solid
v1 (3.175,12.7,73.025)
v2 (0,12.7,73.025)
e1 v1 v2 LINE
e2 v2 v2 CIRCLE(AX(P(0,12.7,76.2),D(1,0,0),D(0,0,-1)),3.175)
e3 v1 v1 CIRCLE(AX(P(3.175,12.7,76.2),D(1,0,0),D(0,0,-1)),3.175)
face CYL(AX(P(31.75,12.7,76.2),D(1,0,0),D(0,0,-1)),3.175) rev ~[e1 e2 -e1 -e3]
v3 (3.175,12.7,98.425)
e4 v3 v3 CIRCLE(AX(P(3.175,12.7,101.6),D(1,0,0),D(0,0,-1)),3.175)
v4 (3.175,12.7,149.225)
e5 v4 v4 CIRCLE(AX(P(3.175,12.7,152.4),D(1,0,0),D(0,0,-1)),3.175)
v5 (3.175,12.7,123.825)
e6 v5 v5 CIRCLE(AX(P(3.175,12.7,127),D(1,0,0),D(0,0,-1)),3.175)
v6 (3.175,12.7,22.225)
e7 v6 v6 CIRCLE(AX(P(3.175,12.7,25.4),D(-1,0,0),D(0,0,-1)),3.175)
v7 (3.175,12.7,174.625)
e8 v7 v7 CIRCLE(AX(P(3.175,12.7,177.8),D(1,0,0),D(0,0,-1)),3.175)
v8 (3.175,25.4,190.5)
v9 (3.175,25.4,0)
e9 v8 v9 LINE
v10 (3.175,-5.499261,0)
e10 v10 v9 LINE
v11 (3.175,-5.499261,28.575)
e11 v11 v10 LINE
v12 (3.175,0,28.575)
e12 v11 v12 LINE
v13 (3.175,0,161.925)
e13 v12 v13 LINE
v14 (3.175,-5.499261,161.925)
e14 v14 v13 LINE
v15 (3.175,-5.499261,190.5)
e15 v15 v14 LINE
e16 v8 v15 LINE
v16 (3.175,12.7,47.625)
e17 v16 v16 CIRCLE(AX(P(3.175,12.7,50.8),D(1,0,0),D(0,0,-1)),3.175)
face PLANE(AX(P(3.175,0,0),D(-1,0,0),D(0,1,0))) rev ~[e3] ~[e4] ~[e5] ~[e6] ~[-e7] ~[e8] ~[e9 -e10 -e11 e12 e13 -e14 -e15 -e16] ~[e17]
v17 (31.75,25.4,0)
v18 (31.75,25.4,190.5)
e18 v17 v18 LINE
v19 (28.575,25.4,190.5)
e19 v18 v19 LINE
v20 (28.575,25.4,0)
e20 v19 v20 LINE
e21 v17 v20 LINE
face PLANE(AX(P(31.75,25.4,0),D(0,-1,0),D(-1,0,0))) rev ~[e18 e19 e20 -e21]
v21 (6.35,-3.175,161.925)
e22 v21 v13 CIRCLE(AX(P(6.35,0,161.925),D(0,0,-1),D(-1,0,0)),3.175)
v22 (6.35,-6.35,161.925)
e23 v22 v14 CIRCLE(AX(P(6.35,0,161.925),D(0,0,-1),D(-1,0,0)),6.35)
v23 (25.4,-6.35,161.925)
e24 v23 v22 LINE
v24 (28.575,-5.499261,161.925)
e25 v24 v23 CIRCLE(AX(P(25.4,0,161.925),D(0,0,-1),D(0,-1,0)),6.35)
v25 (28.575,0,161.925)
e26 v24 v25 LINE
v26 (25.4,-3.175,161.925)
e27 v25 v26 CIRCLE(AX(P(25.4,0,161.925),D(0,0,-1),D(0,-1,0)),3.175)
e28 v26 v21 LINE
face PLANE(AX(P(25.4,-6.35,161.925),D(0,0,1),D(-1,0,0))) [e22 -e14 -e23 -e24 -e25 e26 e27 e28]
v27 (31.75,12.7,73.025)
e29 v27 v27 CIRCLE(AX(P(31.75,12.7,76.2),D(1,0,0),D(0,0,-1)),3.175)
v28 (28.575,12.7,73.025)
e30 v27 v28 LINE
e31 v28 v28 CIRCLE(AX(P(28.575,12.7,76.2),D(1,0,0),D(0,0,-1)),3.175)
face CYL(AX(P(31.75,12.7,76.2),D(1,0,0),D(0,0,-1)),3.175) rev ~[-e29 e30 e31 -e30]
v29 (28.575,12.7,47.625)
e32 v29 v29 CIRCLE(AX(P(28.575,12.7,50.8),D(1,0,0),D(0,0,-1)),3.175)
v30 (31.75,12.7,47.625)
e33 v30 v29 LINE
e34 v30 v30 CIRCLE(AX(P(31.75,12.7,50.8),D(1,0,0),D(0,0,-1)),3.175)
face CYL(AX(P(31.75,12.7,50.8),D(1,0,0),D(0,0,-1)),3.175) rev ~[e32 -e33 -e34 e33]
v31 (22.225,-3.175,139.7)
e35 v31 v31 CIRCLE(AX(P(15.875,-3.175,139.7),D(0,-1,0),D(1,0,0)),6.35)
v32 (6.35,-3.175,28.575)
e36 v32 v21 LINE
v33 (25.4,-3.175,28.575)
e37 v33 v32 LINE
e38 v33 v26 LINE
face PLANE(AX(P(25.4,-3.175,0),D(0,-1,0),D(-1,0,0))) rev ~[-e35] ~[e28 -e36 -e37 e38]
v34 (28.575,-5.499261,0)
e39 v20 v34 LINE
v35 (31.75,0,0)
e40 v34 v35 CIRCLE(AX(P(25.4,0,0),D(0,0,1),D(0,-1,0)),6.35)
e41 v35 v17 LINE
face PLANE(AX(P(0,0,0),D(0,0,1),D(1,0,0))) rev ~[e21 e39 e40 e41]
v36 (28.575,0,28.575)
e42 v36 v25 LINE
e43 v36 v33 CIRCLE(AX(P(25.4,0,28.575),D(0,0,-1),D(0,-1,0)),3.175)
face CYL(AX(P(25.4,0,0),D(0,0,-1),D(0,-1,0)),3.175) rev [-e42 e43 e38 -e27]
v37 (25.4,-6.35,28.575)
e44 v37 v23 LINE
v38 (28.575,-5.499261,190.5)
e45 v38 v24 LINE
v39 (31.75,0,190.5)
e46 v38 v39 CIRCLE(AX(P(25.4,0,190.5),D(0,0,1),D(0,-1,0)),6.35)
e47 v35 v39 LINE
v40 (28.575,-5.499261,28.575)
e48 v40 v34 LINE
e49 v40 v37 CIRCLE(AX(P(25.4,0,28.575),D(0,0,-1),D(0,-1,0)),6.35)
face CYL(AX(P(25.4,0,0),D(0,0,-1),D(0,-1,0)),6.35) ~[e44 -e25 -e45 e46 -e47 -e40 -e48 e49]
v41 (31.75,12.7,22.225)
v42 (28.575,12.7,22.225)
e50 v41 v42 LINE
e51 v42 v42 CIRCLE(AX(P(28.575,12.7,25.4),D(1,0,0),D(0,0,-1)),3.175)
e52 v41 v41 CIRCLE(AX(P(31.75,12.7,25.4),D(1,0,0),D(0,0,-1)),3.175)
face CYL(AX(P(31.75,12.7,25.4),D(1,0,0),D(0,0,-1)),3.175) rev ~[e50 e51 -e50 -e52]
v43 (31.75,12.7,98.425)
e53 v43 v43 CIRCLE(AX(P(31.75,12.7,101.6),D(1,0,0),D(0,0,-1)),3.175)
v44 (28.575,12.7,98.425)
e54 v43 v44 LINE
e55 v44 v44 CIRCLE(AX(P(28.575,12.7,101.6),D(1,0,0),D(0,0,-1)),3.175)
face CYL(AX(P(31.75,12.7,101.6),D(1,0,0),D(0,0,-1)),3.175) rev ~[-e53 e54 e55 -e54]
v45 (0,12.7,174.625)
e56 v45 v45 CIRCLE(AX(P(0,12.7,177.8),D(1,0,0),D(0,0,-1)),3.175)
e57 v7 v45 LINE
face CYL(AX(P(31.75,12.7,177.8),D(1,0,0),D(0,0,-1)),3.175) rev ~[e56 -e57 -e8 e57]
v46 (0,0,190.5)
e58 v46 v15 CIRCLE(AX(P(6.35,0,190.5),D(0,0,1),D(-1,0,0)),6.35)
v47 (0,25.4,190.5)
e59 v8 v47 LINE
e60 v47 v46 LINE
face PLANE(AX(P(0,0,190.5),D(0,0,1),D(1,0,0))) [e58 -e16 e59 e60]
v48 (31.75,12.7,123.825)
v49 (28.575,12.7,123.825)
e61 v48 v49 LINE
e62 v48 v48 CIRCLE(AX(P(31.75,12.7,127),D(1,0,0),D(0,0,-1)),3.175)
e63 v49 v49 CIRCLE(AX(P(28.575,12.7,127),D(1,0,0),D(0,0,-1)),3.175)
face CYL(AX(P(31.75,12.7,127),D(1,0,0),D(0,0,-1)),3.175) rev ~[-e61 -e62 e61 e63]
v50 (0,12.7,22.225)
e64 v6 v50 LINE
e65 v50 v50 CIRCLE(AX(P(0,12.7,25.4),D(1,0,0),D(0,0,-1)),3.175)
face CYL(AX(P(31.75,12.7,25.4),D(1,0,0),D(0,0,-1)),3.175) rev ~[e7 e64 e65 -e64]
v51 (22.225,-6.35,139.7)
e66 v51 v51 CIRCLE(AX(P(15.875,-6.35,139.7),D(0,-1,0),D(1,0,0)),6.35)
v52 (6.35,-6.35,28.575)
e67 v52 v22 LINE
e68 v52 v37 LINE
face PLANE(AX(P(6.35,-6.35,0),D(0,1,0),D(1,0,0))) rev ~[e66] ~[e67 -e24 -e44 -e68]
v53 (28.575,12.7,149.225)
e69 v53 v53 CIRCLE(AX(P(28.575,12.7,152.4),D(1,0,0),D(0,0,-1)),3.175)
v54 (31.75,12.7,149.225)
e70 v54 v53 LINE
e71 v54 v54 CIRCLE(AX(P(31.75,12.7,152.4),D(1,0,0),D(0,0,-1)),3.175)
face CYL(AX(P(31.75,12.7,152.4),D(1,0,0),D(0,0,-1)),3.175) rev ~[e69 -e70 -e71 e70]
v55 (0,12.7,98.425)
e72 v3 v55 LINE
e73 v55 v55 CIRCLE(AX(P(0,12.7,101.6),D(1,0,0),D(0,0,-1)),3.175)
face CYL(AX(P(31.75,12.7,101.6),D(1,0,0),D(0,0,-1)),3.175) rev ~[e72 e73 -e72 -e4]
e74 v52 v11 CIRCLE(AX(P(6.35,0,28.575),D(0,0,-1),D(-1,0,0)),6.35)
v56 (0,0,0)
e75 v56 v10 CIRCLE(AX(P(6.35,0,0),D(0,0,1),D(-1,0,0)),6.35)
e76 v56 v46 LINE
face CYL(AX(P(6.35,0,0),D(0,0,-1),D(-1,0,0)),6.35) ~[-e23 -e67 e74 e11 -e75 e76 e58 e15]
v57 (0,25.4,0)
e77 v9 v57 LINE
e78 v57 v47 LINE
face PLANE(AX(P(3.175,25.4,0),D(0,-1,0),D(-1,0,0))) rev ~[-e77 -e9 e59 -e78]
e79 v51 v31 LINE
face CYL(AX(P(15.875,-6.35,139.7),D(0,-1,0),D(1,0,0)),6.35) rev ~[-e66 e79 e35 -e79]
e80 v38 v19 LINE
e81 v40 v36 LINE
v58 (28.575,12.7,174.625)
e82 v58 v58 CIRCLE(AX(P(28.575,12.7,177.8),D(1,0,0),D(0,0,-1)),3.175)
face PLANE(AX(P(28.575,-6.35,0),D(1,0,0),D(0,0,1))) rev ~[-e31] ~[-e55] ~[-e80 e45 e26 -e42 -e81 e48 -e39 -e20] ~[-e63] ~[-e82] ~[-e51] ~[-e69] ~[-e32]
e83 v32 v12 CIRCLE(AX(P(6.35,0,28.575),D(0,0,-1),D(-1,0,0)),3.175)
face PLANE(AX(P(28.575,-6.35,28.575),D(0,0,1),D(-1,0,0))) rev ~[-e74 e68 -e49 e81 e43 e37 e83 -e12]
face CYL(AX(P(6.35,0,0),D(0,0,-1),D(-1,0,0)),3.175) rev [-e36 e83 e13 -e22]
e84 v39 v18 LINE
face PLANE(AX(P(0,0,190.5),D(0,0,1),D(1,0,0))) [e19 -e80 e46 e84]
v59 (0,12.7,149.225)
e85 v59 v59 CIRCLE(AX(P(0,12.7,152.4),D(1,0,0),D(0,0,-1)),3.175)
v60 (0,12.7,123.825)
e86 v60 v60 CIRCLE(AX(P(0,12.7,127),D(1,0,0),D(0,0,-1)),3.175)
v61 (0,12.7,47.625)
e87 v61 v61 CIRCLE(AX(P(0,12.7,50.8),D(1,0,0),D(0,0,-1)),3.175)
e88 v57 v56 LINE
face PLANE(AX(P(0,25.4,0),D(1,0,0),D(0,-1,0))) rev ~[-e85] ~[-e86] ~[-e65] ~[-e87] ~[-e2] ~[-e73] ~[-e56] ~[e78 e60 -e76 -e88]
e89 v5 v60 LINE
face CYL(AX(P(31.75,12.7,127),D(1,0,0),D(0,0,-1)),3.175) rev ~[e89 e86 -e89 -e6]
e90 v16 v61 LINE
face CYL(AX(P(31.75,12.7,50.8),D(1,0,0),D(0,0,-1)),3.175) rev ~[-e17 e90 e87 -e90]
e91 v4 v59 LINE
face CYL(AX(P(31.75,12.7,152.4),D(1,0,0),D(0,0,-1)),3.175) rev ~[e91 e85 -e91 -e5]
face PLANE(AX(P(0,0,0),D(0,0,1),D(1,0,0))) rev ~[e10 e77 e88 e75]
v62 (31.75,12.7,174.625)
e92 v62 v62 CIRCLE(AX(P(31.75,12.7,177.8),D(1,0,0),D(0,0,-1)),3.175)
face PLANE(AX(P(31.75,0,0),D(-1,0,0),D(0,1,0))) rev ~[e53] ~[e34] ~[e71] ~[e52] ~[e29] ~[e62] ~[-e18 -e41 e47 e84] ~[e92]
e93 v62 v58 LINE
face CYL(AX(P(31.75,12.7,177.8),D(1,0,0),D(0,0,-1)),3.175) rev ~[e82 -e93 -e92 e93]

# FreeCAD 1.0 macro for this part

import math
import FreeCAD as App
import Part
import Sketcher

V = App.Vector
Q = App.Units.Quantity


def add_polygon(sketch, points):
    """Adds a closed chain of lines whose ends are joined by coincident constraints."""
    first, n = sketch.GeometryCount, len(points)
    for a, b in zip(points, points[1:] + points[:1]):
        sketch.addGeometry(Part.LineSegment(App.Vector(*a, 0), App.Vector(*b, 0)), False)
    for i in range(n):
        sketch.addConstraint(Sketcher.Constraint("Coincident", first + i, 2, first + (i + 1) % n, 1))

doc = App.newDocument("Part")
params = doc.addObject("Spreadsheet::Sheet", "Params")
for row, (alias, value) in enumerate([
    ("sketch1_height", "1 in"),
    ("sketch1_radius", "0.125 in"),
    ("pad1_length", "7.5 in"),
    ("sketch2_diameter", "0.25 in"),
    ("linearpattern_pitch", "1 in"),
    ("sketch3_diameter", "0.5 in"),
    ("sketch4_width", "1 in"),
    ("sketch4_height", "1.125 in"),
], start=1):
    params.set(f"A{row}", alias)
    params.set(f"B{row}", "=" + value)
    params.setAlias(f"B{row}", alias)

body = doc.addObject("PartDesign::Body", "Body")

sketch1 = body.newObject("Sketcher::SketchObject", "Sketch")
sketch1.AttachmentSupport = (doc.getObject("XY_Plane"), [""])
sketch1.MapMode = "FlatFace"
sketch1.addGeometry([
    Part.LineSegment(V(3.2, 25.4, 0), V(0, 25.4, 0)),
    Part.LineSegment(V(0, 25.4, 0), V(0, 0, 0)),
    Part.ArcOfCircle(Part.Circle(V(6.3, 0, 0), V(0, 0, 1), 6.3), math.radians(180), math.radians(270)),
    Part.LineSegment(V(6.3, -6.3, 0), V(25.4, -6.3, 0)),
    Part.ArcOfCircle(Part.Circle(V(25.4, 0, 0), V(0, 0, 1), 6.3), math.radians(-90), math.radians(0)),
    Part.LineSegment(V(31.8, 0, 0), V(31.8, 25.4, 0)),
    Part.LineSegment(V(31.8, 25.4, 0), V(28.6, 25.4, 0)),
    Part.LineSegment(V(28.6, 25.4, 0), V(28.6, 0, 0)),
    Part.ArcOfCircle(Part.Circle(V(25.4, 0, 0), V(0, 0, 1), 3.2), math.radians(-90), math.radians(0)),
    Part.LineSegment(V(25.4, -3.2, 0), V(6.3, -3.2, 0)),
    Part.ArcOfCircle(Part.Circle(V(6.3, 0, 0), V(0, 0, 1), 3.2), math.radians(180), math.radians(270)),
    Part.LineSegment(V(3.2, 0, 0), V(3.2, 25.4, 0)),
], False)
sketch1.addConstraint([
    Sketcher.Constraint("Coincident", 0, 2, 1, 1),
    Sketcher.Constraint("Tangent", 1, 2, 2, 1),
    Sketcher.Constraint("Tangent", 2, 2, 3, 1),
    Sketcher.Constraint("Tangent", 3, 2, 4, 1),
    Sketcher.Constraint("Tangent", 4, 2, 5, 1),
    Sketcher.Constraint("Coincident", 5, 2, 6, 1),
    Sketcher.Constraint("Coincident", 6, 2, 7, 1),
    Sketcher.Constraint("Tangent", 7, 2, 8, 2),
    Sketcher.Constraint("Tangent", 8, 1, 9, 1),
    Sketcher.Constraint("Tangent", 9, 2, 10, 2),
    Sketcher.Constraint("Tangent", 10, 1, 11, 1),
    Sketcher.Constraint("Coincident", 11, 2, 0, 1),
    Sketcher.Constraint("Horizontal", 0),
    Sketcher.Constraint("Vertical", 1),
    Sketcher.Constraint("Horizontal", 3),
    Sketcher.Constraint("Vertical", 5),
    Sketcher.Constraint("Horizontal", 6),
    Sketcher.Constraint("Vertical", 7),
    Sketcher.Constraint("Horizontal", 9),
    Sketcher.Constraint("Vertical", 11),
    Sketcher.Constraint("Coincident", 1, 2, -1, 1),
    Sketcher.Constraint("Coincident", 8, 3, 4, 3),
    Sketcher.Constraint("Coincident", 10, 3, 2, 3),
    Sketcher.Constraint("Equal", 2, 4),
    Sketcher.Constraint("Horizontal", 0, 2, 5, 2),
    Sketcher.Constraint("DistanceY", 1, 2, 1, 1, Q("1 in")),
    Sketcher.Constraint("DistanceX", -1, 1, 4, 3, Q("1 in")),
    Sketcher.Constraint("Radius", 8, Q("0.125 in")),
    Sketcher.Constraint("DistanceX", 11, 2, 6, 2, Q("1 in")),
])
sketch1.setExpression("Constraints[25]", "Params.sketch1_height")
sketch1.setExpression("Constraints[27]", "Params.sketch1_radius")
pad1 = body.newObject("PartDesign::Pad", "Pad")
pad1.Profile = sketch1
pad1.setExpression("Length", "Params.pad1_length")

sketch2 = body.newObject("Sketcher::SketchObject", "Sketch001")
sketch2.AttachmentSupport = (doc.getObject("YZ_Plane"), [""])
sketch2.MapMode = "FlatFace"
sketch2.AttachmentOffset = App.Placement(V(0, 0, 1.25 * 25.4), App.Rotation())
sketch2.addGeometry(Part.Circle(V(12.7, 177.8, 0), V(0, 0, 1), 3.2), False)
sketch2.addConstraint([
    Sketcher.Constraint("Diameter", 0, Q("0.25 in")),
    Sketcher.Constraint("DistanceX", -1, 1, 0, 3, Q("0.5 in")),
    Sketcher.Constraint("DistanceY", -1, 1, 0, 3, Q("7 in")),
])
sketch2.setExpression("Constraints[0]", "Params.sketch2_diameter")
pocket1 = body.newObject("PartDesign::Pocket", "Pocket")
pocket1.Profile = sketch2
pocket1.Type = "ThroughAll"
doc.recompute()

linearpattern = body.newObject("PartDesign::LinearPattern", "LinearPattern")
linearpattern.Originals = [pocket1]
linearpattern.Direction = (doc.getObject("Z_Axis"), [""])
linearpattern.Mode = "offset"
linearpattern.setExpression("Offset", "Params.linearpattern_pitch")
linearpattern.Occurrences = 7
linearpattern.Reversed = True
body.Tip = linearpattern

sketch3 = body.newObject("Sketcher::SketchObject", "Sketch002")
sketch3.AttachmentSupport = (doc.getObject("XZ_Plane"), [""])
sketch3.MapMode = "FlatFace"
sketch3.AttachmentOffset = App.Placement(V(0, 0, 0.25 * 25.4), App.Rotation())
sketch3.addGeometry(Part.Circle(V(16, 140, 0), V(0, 0, 1), 6), False)
sketch3.addConstraint([
    Sketcher.Constraint("Diameter", 0, Q("0.5 in")),
    Sketcher.Constraint("DistanceY", -1, 1, 0, 3, Q("5.5 in")),
    Sketcher.Constraint("DistanceX", -1, 1, 0, 3, Q("0.625 in")),
])
sketch3.setExpression("Constraints[0]", "Params.sketch3_diameter")
pocket2 = body.newObject("PartDesign::Pocket", "Pocket001")
pocket2.Profile = sketch3
pocket2.Type = "UpToFirst"

sketch4 = body.newObject("Sketcher::SketchObject", "Sketch003")
sketch4.AttachmentSupport = (doc.getObject("XZ_Plane"), [""])
sketch4.MapMode = "FlatFace"
sketch4.AttachmentOffset = App.Placement(V(0, 0, 0.25 * 25.4), App.Rotation())
add_polygon(sketch4, [(29, 162), (29, 190), (3, 190), (3, 162)])
add_polygon(sketch4, [(29, 29), (3, 29), (3, 0), (29, 0)])
sketch4.addConstraint([
    Sketcher.Constraint("Vertical", 0),
    Sketcher.Constraint("Horizontal", 1),
    Sketcher.Constraint("Vertical", 2),
    Sketcher.Constraint("Horizontal", 3),
    Sketcher.Constraint("Horizontal", 4),
    Sketcher.Constraint("Vertical", 5),
    Sketcher.Constraint("Horizontal", 6),
    Sketcher.Constraint("Vertical", 7),
    Sketcher.Constraint("PointOnObject", 5, 2, -1),
    Sketcher.Constraint("Vertical", 2, 2, 4, 2),
    Sketcher.Constraint("Vertical", 3, 2, 6, 2),
    Sketcher.Constraint("Equal", 2, 5),
    Sketcher.Constraint("DistanceX", 1, 2, 1, 1, Q("1 in")),
    Sketcher.Constraint("DistanceY", 0, 1, 0, 2, Q("1.125 in")),
    Sketcher.Constraint("DistanceX", -1, 1, 0, 2, Q("1.125 in")),
    Sketcher.Constraint("DistanceY", -1, 1, 0, 2, Q("7.5 in")),
])
sketch4.setExpression("Constraints[20]", "Params.sketch4_width")
sketch4.setExpression("Constraints[21]", "Params.sketch4_height")
pocket3 = body.newObject("PartDesign::Pocket", "Pocket002")
pocket3.Profile = sketch4
pocket3.Type = "ThroughAll"

doc.recompute()
